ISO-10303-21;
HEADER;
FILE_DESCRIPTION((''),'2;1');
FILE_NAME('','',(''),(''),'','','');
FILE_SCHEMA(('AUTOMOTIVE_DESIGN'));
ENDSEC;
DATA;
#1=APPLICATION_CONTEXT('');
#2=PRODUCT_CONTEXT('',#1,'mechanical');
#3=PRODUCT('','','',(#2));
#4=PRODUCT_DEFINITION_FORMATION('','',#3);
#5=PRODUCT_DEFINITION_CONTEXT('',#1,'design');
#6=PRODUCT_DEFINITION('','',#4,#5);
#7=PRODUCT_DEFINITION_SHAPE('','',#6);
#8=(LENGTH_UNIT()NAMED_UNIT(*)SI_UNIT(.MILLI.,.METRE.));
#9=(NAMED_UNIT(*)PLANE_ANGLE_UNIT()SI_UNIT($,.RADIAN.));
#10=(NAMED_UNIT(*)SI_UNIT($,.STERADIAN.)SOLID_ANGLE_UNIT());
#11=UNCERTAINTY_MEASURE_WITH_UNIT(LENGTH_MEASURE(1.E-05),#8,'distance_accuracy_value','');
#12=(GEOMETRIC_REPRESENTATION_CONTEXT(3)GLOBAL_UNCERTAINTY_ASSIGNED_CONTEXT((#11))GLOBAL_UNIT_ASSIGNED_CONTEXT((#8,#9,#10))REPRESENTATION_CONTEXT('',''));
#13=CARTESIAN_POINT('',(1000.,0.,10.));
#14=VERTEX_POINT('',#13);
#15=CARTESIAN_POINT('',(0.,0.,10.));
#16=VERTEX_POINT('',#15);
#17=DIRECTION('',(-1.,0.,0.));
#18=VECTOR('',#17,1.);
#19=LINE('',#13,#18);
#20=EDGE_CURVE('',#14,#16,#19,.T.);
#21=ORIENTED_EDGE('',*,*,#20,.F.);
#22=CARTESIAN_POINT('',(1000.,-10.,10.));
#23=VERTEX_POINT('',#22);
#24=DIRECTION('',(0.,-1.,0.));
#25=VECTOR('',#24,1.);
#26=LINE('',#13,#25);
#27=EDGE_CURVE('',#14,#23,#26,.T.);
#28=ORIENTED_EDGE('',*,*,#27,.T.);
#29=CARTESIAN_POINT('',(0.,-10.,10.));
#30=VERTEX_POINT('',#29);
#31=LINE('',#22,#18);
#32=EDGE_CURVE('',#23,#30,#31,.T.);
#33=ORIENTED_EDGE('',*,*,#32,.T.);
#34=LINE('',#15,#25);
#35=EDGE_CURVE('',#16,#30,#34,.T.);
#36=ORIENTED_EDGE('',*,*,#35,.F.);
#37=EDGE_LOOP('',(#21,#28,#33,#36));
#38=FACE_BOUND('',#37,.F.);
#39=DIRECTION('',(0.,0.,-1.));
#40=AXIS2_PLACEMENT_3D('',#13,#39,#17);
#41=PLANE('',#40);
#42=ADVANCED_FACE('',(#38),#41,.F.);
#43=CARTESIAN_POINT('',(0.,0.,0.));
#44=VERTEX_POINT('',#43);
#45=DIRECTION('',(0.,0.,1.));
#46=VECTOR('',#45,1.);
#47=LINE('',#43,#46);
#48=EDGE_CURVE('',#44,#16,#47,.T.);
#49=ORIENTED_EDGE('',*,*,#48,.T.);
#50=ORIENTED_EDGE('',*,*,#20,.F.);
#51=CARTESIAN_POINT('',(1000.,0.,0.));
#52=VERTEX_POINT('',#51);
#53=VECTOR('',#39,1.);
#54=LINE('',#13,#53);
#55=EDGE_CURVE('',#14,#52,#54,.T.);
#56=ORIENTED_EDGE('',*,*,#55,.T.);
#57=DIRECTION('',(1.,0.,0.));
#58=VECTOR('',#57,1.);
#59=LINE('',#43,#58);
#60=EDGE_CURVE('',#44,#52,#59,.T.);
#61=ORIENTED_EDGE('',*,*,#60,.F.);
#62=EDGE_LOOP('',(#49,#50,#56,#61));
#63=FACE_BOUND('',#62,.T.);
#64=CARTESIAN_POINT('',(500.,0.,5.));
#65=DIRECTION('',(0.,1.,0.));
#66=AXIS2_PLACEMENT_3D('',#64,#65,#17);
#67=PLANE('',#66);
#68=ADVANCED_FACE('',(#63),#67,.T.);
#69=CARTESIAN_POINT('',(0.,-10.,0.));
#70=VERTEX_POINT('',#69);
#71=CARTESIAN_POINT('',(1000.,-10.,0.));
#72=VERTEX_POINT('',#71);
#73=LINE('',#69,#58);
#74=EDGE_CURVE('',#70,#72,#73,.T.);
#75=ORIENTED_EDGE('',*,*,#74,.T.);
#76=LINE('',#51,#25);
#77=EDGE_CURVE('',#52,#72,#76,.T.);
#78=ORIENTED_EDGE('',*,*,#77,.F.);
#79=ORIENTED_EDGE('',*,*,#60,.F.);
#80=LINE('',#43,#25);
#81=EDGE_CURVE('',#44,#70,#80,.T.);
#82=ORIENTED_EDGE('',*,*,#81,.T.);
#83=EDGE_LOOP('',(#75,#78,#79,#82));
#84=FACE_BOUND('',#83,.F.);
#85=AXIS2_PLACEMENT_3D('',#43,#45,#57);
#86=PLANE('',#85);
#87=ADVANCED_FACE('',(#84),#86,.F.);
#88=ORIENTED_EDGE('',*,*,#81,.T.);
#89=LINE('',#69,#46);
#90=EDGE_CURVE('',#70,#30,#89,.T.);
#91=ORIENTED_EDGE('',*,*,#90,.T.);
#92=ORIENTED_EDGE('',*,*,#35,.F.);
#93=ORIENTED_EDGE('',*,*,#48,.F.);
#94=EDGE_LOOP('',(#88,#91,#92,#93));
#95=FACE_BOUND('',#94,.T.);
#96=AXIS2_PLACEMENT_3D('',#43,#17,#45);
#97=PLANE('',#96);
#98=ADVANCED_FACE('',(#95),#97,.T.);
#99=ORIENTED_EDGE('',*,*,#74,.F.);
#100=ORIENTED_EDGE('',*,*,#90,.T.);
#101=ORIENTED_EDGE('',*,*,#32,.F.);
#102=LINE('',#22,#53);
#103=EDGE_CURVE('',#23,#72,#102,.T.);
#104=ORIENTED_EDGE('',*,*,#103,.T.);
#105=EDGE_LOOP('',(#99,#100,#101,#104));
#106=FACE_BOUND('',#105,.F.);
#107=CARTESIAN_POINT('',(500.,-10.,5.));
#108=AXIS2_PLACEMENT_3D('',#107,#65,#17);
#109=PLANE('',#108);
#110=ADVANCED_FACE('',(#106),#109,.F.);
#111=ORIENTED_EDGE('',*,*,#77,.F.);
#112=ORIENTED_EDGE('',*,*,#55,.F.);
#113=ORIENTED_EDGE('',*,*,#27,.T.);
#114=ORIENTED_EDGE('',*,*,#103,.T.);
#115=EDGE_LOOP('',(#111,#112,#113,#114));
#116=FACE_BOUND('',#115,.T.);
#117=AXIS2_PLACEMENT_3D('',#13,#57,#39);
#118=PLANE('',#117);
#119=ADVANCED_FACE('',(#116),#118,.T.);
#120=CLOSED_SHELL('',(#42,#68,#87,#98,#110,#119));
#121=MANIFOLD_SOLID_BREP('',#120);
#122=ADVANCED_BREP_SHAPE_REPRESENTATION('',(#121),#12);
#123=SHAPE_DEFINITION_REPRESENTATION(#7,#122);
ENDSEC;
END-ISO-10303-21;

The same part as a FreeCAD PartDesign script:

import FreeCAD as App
import Part
import Sketcher


def add_polygon(sketch, points):
    """Adds a closed chain of lines whose ends are joined by coincident constraints."""
    first, n = sketch.GeometryCount, len(points)
    for a, b in zip(points, points[1:] + points[:1]):
        sketch.addGeometry(Part.LineSegment(App.Vector(*a, 0), App.Vector(*b, 0)), False)
    for i in range(n):
        sketch.addConstraint(Sketcher.Constraint("Coincident", first + i, 2, first + (i + 1) % n, 1))

doc = App.newDocument("Part")
body = doc.addObject("PartDesign::Body", "Body")

# Sketch on XZ plane
sketch1 = body.newObject("Sketcher::SketchObject", "Sketch")
sketch1.AttachmentSupport = (doc.getObject("XZ_Plane"), [""])
sketch1.MapMode = "FlatFace"
add_polygon(sketch1, [(1000, 10), (0, 10), (0, 0), (1000, 0)])  # lines 0-3
sketch1.addConstraint([
    Sketcher.Constraint("Horizontal", 0),
    Sketcher.Constraint("Vertical", 1),
    Sketcher.Constraint("Horizontal", 2),
    Sketcher.Constraint("Vertical", 3),
    Sketcher.Constraint("Coincident", 1, 2, -1, 1),
    Sketcher.Constraint("DistanceX", 0, 2, 0, 1, 1000.0),
    Sketcher.Constraint("DistanceY", 1, 2, 1, 1, 10.0),
])
pad1 = body.newObject("PartDesign::Pad", "Pad")
pad1.Profile = sketch1
pad1.Length = 10

doc.recompute()
